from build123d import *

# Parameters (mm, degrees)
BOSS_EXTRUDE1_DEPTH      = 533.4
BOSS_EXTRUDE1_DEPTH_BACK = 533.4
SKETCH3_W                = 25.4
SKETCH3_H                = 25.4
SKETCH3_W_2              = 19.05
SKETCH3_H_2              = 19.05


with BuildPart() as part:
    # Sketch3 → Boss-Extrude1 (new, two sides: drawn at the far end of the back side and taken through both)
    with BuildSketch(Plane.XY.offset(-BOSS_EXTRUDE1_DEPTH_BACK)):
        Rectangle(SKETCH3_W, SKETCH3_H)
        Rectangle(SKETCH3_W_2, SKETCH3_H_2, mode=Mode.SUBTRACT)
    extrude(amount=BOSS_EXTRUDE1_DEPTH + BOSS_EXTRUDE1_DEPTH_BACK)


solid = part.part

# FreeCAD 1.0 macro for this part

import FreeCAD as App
import Part
import Sketcher
from FreeCAD import Vector
Q = App.Units.Quantity

doc = App.newDocument("Part")
body = doc.addObject("PartDesign::Body", "Body")

# Sketch on XY plane
sketch1 = body.newObject("Sketcher::SketchObject", "Sketch")
sketch1.AttachmentSupport = (doc.getObject("XY_Plane"), [""])
sketch1.MapMode = "FlatFace"
sketch1.addGeometry([
    Part.LineSegment(Vector(-13, 13, 0), Vector(-13, -13, 0)),  # 0
    Part.LineSegment(Vector(-13, -13, 0), Vector(13, -13, 0)),  # 1
    Part.LineSegment(Vector(13, -13, 0), Vector(13, 13, 0)),  # 2
    Part.LineSegment(Vector(13, 13, 0), Vector(-13, 13, 0)),  # 3
    Part.LineSegment(Vector(10, -10, 0), Vector(-10, -10, 0)),  # 4
    Part.LineSegment(Vector(-10, -10, 0), Vector(-10, 10, 0)),  # 5
    Part.LineSegment(Vector(-10, 10, 0), Vector(10, 10, 0)),  # 6
    Part.LineSegment(Vector(10, 10, 0), Vector(10, -10, 0)),  # 7
], False)
sketch1.addConstraint([
    Sketcher.Constraint("Coincident", 0, 2, 1, 1),
    Sketcher.Constraint("Coincident", 1, 2, 2, 1),
    Sketcher.Constraint("Coincident", 2, 2, 3, 1),
    Sketcher.Constraint("Coincident", 3, 2, 0, 1),
    Sketcher.Constraint("Coincident", 4, 2, 5, 1),
    Sketcher.Constraint("Coincident", 5, 2, 6, 1),
    Sketcher.Constraint("Coincident", 6, 2, 7, 1),
    Sketcher.Constraint("Coincident", 7, 2, 4, 1),
    Sketcher.Constraint("Vertical", 0),
    Sketcher.Constraint("Horizontal", 1),
    Sketcher.Constraint("Vertical", 2),
    Sketcher.Constraint("Horizontal", 3),
    Sketcher.Constraint("Horizontal", 4),
    Sketcher.Constraint("Vertical", 5),
    Sketcher.Constraint("Horizontal", 6),
    Sketcher.Constraint("Vertical", 7),
    Sketcher.Constraint("Symmetric", 0, 2, 2, 2, -1, 1),
    Sketcher.Constraint("Symmetric", 4, 2, 6, 2, -1, 1),
    Sketcher.Constraint("Equal", 3, 0),
    Sketcher.Constraint("Equal", 6, 5),
    Sketcher.Constraint("DistanceX", 1, 1, 1, 2, Q("1 in")),
    Sketcher.Constraint("DistanceX", 4, 2, 4, 1, Q("0.75 in")),
])
pad1 = body.newObject("PartDesign::Pad", "Pad")
pad1.Profile = sketch1
pad1.Type = "TwoLengths"
pad1.Length = Q("21 in")
pad1.Length2 = Q("21 in")

doc.recompute()
